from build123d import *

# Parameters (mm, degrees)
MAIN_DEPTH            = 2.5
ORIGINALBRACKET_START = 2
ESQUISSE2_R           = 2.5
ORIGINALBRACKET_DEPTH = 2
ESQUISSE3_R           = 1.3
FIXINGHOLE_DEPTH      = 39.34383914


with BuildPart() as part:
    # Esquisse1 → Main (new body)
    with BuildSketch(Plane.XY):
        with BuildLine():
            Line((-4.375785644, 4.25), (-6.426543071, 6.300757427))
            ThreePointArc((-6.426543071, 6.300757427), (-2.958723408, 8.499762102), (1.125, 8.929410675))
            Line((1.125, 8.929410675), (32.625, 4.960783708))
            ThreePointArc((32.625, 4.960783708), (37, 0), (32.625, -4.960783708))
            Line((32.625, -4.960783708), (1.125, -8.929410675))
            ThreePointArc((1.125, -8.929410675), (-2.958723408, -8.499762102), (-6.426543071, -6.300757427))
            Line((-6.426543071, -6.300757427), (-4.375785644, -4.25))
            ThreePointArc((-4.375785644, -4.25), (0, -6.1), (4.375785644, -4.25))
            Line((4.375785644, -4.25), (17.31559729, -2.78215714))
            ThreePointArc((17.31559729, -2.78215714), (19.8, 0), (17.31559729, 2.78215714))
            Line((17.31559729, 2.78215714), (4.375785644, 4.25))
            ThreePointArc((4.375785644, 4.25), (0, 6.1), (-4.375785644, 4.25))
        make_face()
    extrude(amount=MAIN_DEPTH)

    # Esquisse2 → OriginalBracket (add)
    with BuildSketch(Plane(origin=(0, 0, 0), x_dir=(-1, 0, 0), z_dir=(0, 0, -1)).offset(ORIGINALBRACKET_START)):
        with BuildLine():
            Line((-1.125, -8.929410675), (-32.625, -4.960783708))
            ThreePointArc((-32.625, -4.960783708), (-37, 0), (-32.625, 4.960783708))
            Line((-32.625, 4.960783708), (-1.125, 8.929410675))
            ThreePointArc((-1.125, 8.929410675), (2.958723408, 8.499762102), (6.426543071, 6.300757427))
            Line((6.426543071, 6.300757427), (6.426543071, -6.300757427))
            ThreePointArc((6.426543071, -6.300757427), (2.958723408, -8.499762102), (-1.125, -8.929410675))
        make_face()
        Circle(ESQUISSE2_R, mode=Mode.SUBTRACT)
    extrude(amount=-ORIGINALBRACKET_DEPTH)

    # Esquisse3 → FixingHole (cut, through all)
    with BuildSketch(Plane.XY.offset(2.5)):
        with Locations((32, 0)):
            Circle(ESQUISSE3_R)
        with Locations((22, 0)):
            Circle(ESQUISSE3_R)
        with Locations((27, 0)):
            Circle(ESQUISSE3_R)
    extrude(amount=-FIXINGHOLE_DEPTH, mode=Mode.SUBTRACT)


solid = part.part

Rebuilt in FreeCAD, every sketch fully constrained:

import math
import FreeCAD as App
import Part
import Sketcher

doc = App.newDocument("Part")
body = doc.addObject("PartDesign::Body", "Body")

sketch1 = body.newObject("Sketcher::SketchObject", "Sketch")
sketch1.AttachmentSupport = (doc.getObject("XY_Plane"), [""])
sketch1.MapMode = "FlatFace"
sketch1.addGeometry(Part.LineSegment(App.Vector(-6.4, 6.3, 0), App.Vector(-4.4, 4.2, 0)), False)
sketch1.addGeometry(Part.ArcOfCircle(Part.Circle(App.Vector(0, 0, 0), App.Vector(0, 0, 1), 6.1), math.radians(44), math.radians(136)), False)
sketch1.addGeometry(Part.LineSegment(App.Vector(4.4, 4.2, 0), App.Vector(17.3, 2.8, 0)), False)
sketch1.addGeometry(Part.ArcOfCircle(Part.Circle(App.Vector(17, 0, 0), App.Vector(0, 0, 1), 2.8), math.radians(-84), math.radians(84)), False)
sketch1.addGeometry(Part.LineSegment(App.Vector(17.3, -2.8, 0), App.Vector(4.4, -4.2, 0)), False)
sketch1.addGeometry(Part.ArcOfCircle(Part.Circle(App.Vector(0, 0, 0), App.Vector(0, 0, 1), 6.1), math.radians(-136), math.radians(-44)), False)
sketch1.addGeometry(Part.LineSegment(App.Vector(-4.4, -4.2, 0), App.Vector(-6.4, -6.3, 0)), False)
sketch1.addGeometry(Part.ArcOfCircle(Part.Circle(App.Vector(0, 0, 0), App.Vector(0, 0, 1), 9), math.radians(-136), math.radians(-83)), False)
sketch1.addGeometry(Part.LineSegment(App.Vector(1.1, -8.9, 0), App.Vector(32.6, -5, 0)), False)
sketch1.addGeometry(Part.ArcOfCircle(Part.Circle(App.Vector(32, 0, 0), App.Vector(0, 0, 1), 5), math.radians(-83), math.radians(83)), False)
sketch1.addGeometry(Part.LineSegment(App.Vector(32.6, 5, 0), App.Vector(1.1, 8.9, 0)), False)
sketch1.addGeometry(Part.ArcOfCircle(Part.Circle(App.Vector(0, 0, 0), App.Vector(0, 0, 1), 9), math.radians(83), math.radians(136)), False)
sketch1.addConstraint(Sketcher.Constraint("Coincident", 0, 2, 1, 2))
sketch1.addConstraint(Sketcher.Constraint("Coincident", 1, 1, 2, 1))
sketch1.addConstraint(Sketcher.Constraint("Tangent", 2, 2, 3, 2))
sketch1.addConstraint(Sketcher.Constraint("Tangent", 3, 1, 4, 1))
sketch1.addConstraint(Sketcher.Constraint("Coincident", 4, 2, 5, 2))
sketch1.addConstraint(Sketcher.Constraint("Coincident", 5, 1, 6, 1))
sketch1.addConstraint(Sketcher.Constraint("Coincident", 6, 2, 7, 1))
sketch1.addConstraint(Sketcher.Constraint("Tangent", 7, 2, 8, 1))
sketch1.addConstraint(Sketcher.Constraint("Tangent", 8, 2, 9, 1))
sketch1.addConstraint(Sketcher.Constraint("Tangent", 9, 2, 10, 1))
sketch1.addConstraint(Sketcher.Constraint("Tangent", 10, 2, 11, 1))
sketch1.addConstraint(Sketcher.Constraint("Coincident", 11, 2, 0, 1))
sketch1.addConstraint(Sketcher.Constraint("Coincident", 1, 3, -1, 1))
sketch1.addConstraint(Sketcher.Constraint("Coincident", 5, 3, -1, 1))
sketch1.addConstraint(Sketcher.Constraint("Coincident", 7, 3, -1, 1))
sketch1.addConstraint(Sketcher.Constraint("Coincident", 11, 3, -1, 1))
sketch1.addConstraint(Sketcher.Constraint("Equal", 1, 5))
sketch1.addConstraint(Sketcher.Constraint("Equal", 7, 11))
sketch1.addConstraint(Sketcher.Constraint("Symmetric", 2, 2, 3, 1, -1))
sketch1.addConstraint(Sketcher.Constraint("PointOnObject", 9, 3, -1))
sketch1.addConstraint(Sketcher.Constraint("Perpendicular", 0, 6))
sketch1.addConstraint(Sketcher.Constraint("Horizontal", 0, 2, 1, 1))
sketch1.addConstraint(Sketcher.Constraint("Horizontal", 4, 2, 5, 1))
sketch1.addConstraint(Sketcher.Constraint("Vertical", 6, 2, 11, 2))
sketch1.addConstraint(Sketcher.Constraint("Radius", 7, 9.0))
sketch1.addConstraint(Sketcher.Constraint("Radius", 9, 5.0))
sketch1.addConstraint(Sketcher.Constraint("Radius", 1, 6.1))
sketch1.addConstraint(Sketcher.Constraint("Radius", 3, 2.8))
sketch1.addConstraint(Sketcher.Constraint("DistanceX", -1, 1, 3, 3, 17.0))
sketch1.addConstraint(Sketcher.Constraint("DistanceX", -1, 1, 9, 3, 32.0))
sketch1.addConstraint(Sketcher.Constraint("DistanceY", 4, 2, 1, 1, 8.5))
pad1 = body.newObject("PartDesign::Pad", "Pad")
pad1.Profile = sketch1
pad1.Length = 2.5

sketch2 = body.newObject("Sketcher::SketchObject", "Sketch001")
sketch2.AttachmentSupport = (doc.getObject("XY_Plane"), [""])
sketch2.MapMode = "FlatFace"
sketch2.AttachmentOffset = App.Placement(App.Vector(0, 0, -2), App.Rotation())
sketch2.addGeometry(Part.LineSegment(App.Vector(32.6, -5, 0), App.Vector(1.1, -8.9, 0)), False)
sketch2.addGeometry(Part.ArcOfCircle(Part.Circle(App.Vector(0, 0, 0), App.Vector(0, 0, 1), 9), math.radians(-136), math.radians(-83)), False)
sketch2.addGeometry(Part.LineSegment(App.Vector(-6.4, -6.3, 0), App.Vector(-6.4, 6.3, 0)), False)
sketch2.addGeometry(Part.ArcOfCircle(Part.Circle(App.Vector(0, 0, 0), App.Vector(0, 0, 1), 9), math.radians(83), math.radians(136)), False)
sketch2.addGeometry(Part.LineSegment(App.Vector(1.1, 8.9, 0), App.Vector(32.6, 5, 0)), False)
sketch2.addGeometry(Part.ArcOfCircle(Part.Circle(App.Vector(32, 0, 0), App.Vector(0, 0, 1), 5), math.radians(-83), math.radians(83)), False)
sketch2.addGeometry(Part.Circle(App.Vector(0, 0, 0), App.Vector(0, 0, 1), 2.5), False)
sketch2.addConstraint(Sketcher.Constraint("Tangent", 0, 2, 1, 2))
sketch2.addConstraint(Sketcher.Constraint("Coincident", 1, 1, 2, 1))
sketch2.addConstraint(Sketcher.Constraint("Coincident", 2, 2, 3, 2))
sketch2.addConstraint(Sketcher.Constraint("Tangent", 3, 1, 4, 1))
sketch2.addConstraint(Sketcher.Constraint("Tangent", 4, 2, 5, 2))
sketch2.addConstraint(Sketcher.Constraint("Tangent", 5, 1, 0, 1))
sketch2.addConstraint(Sketcher.Constraint("Vertical", 2))
sketch2.addConstraint(Sketcher.Constraint("Coincident", 1, 3, -1, 1))
sketch2.addConstraint(Sketcher.Constraint("Coincident", 3, 3, -1, 1))
sketch2.addConstraint(Sketcher.Constraint("Coincident", 6, 3, -1, 1))
sketch2.addConstraint(Sketcher.Constraint("Equal", 1, 3))
sketch2.addConstraint(Sketcher.Constraint("PointOnObject", 5, 3, -1))
sketch2.addConstraint(Sketcher.Constraint("Diameter", 6, 5.0))
sketch2.addConstraint(Sketcher.Constraint("Radius", 1, 9.0))
sketch2.addConstraint(Sketcher.Constraint("Radius", 5, 5.0))
sketch2.addConstraint(Sketcher.Constraint("DistanceX", -1, 1, 5, 3, 32.0))
sketch2.addConstraint(Sketcher.Constraint("DistanceY", 2, 1, 2, 2, 12.601515))
pad2 = body.newObject("PartDesign::Pad", "Pad001")
pad2.Profile = sketch2
pad2.Length = 2

sketch3 = body.newObject("Sketcher::SketchObject", "Sketch002")
sketch3.AttachmentSupport = (doc.getObject("XY_Plane"), [""])
sketch3.MapMode = "FlatFace"
sketch3.AttachmentOffset = App.Placement(App.Vector(0, 0, 2.5), App.Rotation())
sketch3.addGeometry(Part.Circle(App.Vector(32, 0, 0), App.Vector(0, 0, 1), 1.3), False)
sketch3.addGeometry(Part.Circle(App.Vector(22, 0, 0), App.Vector(0, 0, 1), 1.3), False)
sketch3.addGeometry(Part.Circle(App.Vector(27, 0, 0), App.Vector(0, 0, 1), 1.3), False)
sketch3.addConstraint(Sketcher.Constraint("Equal", 0, 1))
sketch3.addConstraint(Sketcher.Constraint("Equal", 1, 2))
sketch3.addConstraint(Sketcher.Constraint("PointOnObject", 0, 3, -1))
sketch3.addConstraint(Sketcher.Constraint("PointOnObject", 1, 3, -1))
sketch3.addConstraint(Sketcher.Constraint("PointOnObject", 2, 3, -1))
sketch3.addConstraint(Sketcher.Constraint("Diameter", 0, 2.6))
sketch3.addConstraint(Sketcher.Constraint("DistanceX", -1, 1, 0, 3, 32.0))
sketch3.addConstraint(Sketcher.Constraint("DistanceX", -1, 1, 1, 3, 22.0))
sketch3.addConstraint(Sketcher.Constraint("DistanceX", -1, 1, 2, 3, 27.0))
pocket1 = body.newObject("PartDesign::Pocket", "Pocket")
pocket1.Profile = sketch3
pocket1.Type = "ThroughAll"

doc.recompute()
